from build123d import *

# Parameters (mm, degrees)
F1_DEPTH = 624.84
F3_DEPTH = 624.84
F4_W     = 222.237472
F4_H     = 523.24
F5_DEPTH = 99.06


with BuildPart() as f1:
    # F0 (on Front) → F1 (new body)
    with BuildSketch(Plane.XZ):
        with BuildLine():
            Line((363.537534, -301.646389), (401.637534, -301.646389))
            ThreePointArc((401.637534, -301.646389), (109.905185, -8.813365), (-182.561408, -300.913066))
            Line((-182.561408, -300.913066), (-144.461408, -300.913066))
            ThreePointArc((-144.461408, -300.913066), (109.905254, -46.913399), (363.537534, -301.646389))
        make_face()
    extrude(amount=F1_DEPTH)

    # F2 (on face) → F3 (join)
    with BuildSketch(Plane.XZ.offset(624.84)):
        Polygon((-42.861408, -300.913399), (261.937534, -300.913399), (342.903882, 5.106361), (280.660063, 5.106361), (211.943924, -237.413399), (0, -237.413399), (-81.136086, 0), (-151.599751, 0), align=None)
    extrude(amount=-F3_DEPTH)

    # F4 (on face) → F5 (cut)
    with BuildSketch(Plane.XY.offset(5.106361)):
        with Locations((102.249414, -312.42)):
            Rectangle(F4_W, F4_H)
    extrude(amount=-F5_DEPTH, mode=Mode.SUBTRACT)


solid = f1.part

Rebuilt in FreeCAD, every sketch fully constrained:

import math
import FreeCAD as App
import Part
import Sketcher
from FreeCAD import Vector
Q = App.Units.Quantity


def add_polygon(sketch, points):
    """Adds a closed chain of lines whose ends are joined by coincident constraints."""
    first, n = sketch.GeometryCount, len(points)
    for a, b in zip(points, points[1:] + points[:1]):
        sketch.addGeometry(Part.LineSegment(App.Vector(*a, 0), App.Vector(*b, 0)), False)
    for i in range(n):
        sketch.addConstraint(Sketcher.Constraint("Coincident", first + i, 2, first + (i + 1) % n, 1))

doc = App.newDocument("Part")
params = doc.addObject("Spreadsheet::Sheet", "Params")
for row, (alias, value) in enumerate([
    ("sketch1_radius", "10 in"),
    ("sketch1_width", "1.5 in"),
    ("pad1_length", "24.6 in"),
    ("pad2_length", "24.6 in"),
    ("sketch3_height", "20.6 in"),
    ("pocket1_length", "3.9 in"),
], start=1):
    params.set(f"A{row}", alias)
    params.set(f"B{row}", "=" + value)
    params.setAlias(f"B{row}", alias)

body = doc.addObject("PartDesign::Body", "Body")

# Sketch on XZ plane
sketch1 = body.newObject("Sketcher::SketchObject", "Sketch")
sketch1.AttachmentSupport = (doc.getObject("XZ_Plane"), [""])
sketch1.MapMode = "FlatFace"
sketch1.addGeometry(Part.LineSegment(Vector(363.537534, -301.646389, 0), Vector(401.637534, -301.646389, 0)), False)
sketch1.addGeometry(Part.ArcOfCircle(Part.Circle(Vector(109.538523, -300.913066, 0), Vector(0, 0, 1), 292.099931), math.radians(-0.143842), math.radians(180)), False)
sketch1.addGeometry(Part.LineSegment(Vector(-182.561408, -300.913066, 0), Vector(-144.461408, -300.913066, 0)), False)
sketch1.addGeometry(Part.ArcOfCircle(Part.Circle(Vector(109.538592, -300.913135, 0), Vector(0, 0, 1), 254), math.radians(-0.165403), math.radians(179.999985)), False)
sketch1.addConstraint(Sketcher.Constraint("Coincident", 0, 2, 1, 1))
sketch1.addConstraint(Sketcher.Constraint("Coincident", 1, 2, 2, 1))
sketch1.addConstraint(Sketcher.Constraint("Coincident", 2, 2, 3, 2))
sketch1.addConstraint(Sketcher.Constraint("Coincident", 3, 1, 0, 1))
sketch1.addConstraint(Sketcher.Constraint("Horizontal", 0))
sketch1.addConstraint(Sketcher.Constraint("Horizontal", 2))
sketch1.addConstraint(Sketcher.Constraint("Equal", 0, 2))
sketch1.addConstraint(Sketcher.Constraint("Radius", 3, Q("10 in")))
sketch1.addConstraint(Sketcher.Constraint("DistanceX", 0, 1, 0, 2, Q("1.5 in")))
sketch1.addConstraint(Sketcher.Constraint("DistanceY", 0, 2, -1, 1, 301.646389))
sketch1.addConstraint(Sketcher.Constraint("DistanceX", 2, 2, -1, 1, 144.461408))
sketch1.addConstraint(Sketcher.Constraint("DistanceX", 3, 3, 0, 2, 292.098942))
sketch1.addConstraint(Sketcher.Constraint("DistanceY", 1, 3, -1, 1, 300.913066))
sketch1.addConstraint(Sketcher.Constraint("DistanceY", 1, 2, -1, 1, 300.913066))
sketch1.setExpression("Constraints[7]", "Params.sketch1_radius")
sketch1.setExpression("Constraints[8]", "Params.sketch1_width")
pad1 = body.newObject("PartDesign::Pad", "Pad")
pad1.Profile = sketch1
pad1.setExpression("Length", "Params.pad1_length")

# Sketch on XZ plane
sketch2 = body.newObject("Sketcher::SketchObject", "Sketch001")
sketch2.AttachmentSupport = (doc.getObject("XZ_Plane"), [""])
sketch2.MapMode = "FlatFace"
sketch2.AttachmentOffset = App.Placement(Vector(0, 0, 24.6 * 25.4), App.Rotation())
add_polygon(sketch2, [(-43, -301), (262, -301), (343, 5), (281, 5), (212, -237), (0, -237), (-81, 0), (-152, 0)])  # lines 0-7
sketch2.addConstraint(Sketcher.Constraint("Horizontal", 0))
sketch2.addConstraint(Sketcher.Constraint("Horizontal", 2))
sketch2.addConstraint(Sketcher.Constraint("Horizontal", 4))
sketch2.addConstraint(Sketcher.Constraint("Horizontal", 6))
sketch2.addConstraint(Sketcher.Constraint("PointOnObject", 4, 2, -2))
sketch2.addConstraint(Sketcher.Constraint("PointOnObject", 5, 2, -1))
sketch2.addConstraint(Sketcher.Constraint("DistanceY", 0, 2, 3, 2, Q("2.5 in")))
sketch2.addConstraint(Sketcher.Constraint("DistanceX", 0, 1, 0, 2, 304.798942))
sketch2.addConstraint(Sketcher.Constraint("DistanceX", 2, 2, 2, 1, 62.243819))
sketch2.addConstraint(Sketcher.Constraint("DistanceY", 0, 2, -1, 1, 300.913399))
sketch2.addConstraint(Sketcher.Constraint("Distance", 1, 316.54959))
sketch2.addConstraint(Sketcher.Constraint("Distance", 3, 252.066939))
sketch2.addConstraint(Sketcher.Constraint("Distance", 5, 250.894772))
sketch2.addConstraint(Sketcher.Constraint("DistanceX", 4, 2, 4, 1, 211.943924))
sketch2.addConstraint(Sketcher.Constraint("DistanceX", 6, 2, 6, 1, 70.463665))
sketch2.addConstraint(Sketcher.Constraint("DistanceX", -1, 1, 1, 2, 342.903882))
pad2 = body.newObject("PartDesign::Pad", "Pad001")
pad2.Profile = sketch2
pad2.setExpression("Length", "Params.pad2_length")
pad2.Reversed = True

# Sketch on XY plane
sketch3 = body.newObject("Sketcher::SketchObject", "Sketch002")
sketch3.AttachmentSupport = (doc.getObject("XY_Plane"), [""])
sketch3.MapMode = "FlatFace"
sketch3.AttachmentOffset = App.Placement(Vector(0, 0, 5.106361), App.Rotation())
add_polygon(sketch3, [(-9, -51), (-9, -574), (213, -574), (213, -51)])  # lines 0-3
sketch3.addConstraint(Sketcher.Constraint("Vertical", 0))
sketch3.addConstraint(Sketcher.Constraint("Horizontal", 1))
sketch3.addConstraint(Sketcher.Constraint("Vertical", 2))
sketch3.addConstraint(Sketcher.Constraint("Horizontal", 3))
sketch3.addConstraint(Sketcher.Constraint("DistanceY", 0, 2, 0, 1, Q("20.6 in")))
sketch3.addConstraint(Sketcher.Constraint("DistanceY", 2, 2, -1, 1, Q("2 in")))
sketch3.addConstraint(Sketcher.Constraint("DistanceX", 1, 1, 1, 2, 222.237472))
sketch3.addConstraint(Sketcher.Constraint("DistanceX", -1, 1, 1, 2, 213.36815))
sketch3.setExpression("Constraints[8]", "Params.sketch3_height")
pocket1 = body.newObject("PartDesign::Pocket", "Pocket")
pocket1.Profile = sketch3
pocket1.setExpression("Length", "Params.pocket1_length")

doc.recompute()
